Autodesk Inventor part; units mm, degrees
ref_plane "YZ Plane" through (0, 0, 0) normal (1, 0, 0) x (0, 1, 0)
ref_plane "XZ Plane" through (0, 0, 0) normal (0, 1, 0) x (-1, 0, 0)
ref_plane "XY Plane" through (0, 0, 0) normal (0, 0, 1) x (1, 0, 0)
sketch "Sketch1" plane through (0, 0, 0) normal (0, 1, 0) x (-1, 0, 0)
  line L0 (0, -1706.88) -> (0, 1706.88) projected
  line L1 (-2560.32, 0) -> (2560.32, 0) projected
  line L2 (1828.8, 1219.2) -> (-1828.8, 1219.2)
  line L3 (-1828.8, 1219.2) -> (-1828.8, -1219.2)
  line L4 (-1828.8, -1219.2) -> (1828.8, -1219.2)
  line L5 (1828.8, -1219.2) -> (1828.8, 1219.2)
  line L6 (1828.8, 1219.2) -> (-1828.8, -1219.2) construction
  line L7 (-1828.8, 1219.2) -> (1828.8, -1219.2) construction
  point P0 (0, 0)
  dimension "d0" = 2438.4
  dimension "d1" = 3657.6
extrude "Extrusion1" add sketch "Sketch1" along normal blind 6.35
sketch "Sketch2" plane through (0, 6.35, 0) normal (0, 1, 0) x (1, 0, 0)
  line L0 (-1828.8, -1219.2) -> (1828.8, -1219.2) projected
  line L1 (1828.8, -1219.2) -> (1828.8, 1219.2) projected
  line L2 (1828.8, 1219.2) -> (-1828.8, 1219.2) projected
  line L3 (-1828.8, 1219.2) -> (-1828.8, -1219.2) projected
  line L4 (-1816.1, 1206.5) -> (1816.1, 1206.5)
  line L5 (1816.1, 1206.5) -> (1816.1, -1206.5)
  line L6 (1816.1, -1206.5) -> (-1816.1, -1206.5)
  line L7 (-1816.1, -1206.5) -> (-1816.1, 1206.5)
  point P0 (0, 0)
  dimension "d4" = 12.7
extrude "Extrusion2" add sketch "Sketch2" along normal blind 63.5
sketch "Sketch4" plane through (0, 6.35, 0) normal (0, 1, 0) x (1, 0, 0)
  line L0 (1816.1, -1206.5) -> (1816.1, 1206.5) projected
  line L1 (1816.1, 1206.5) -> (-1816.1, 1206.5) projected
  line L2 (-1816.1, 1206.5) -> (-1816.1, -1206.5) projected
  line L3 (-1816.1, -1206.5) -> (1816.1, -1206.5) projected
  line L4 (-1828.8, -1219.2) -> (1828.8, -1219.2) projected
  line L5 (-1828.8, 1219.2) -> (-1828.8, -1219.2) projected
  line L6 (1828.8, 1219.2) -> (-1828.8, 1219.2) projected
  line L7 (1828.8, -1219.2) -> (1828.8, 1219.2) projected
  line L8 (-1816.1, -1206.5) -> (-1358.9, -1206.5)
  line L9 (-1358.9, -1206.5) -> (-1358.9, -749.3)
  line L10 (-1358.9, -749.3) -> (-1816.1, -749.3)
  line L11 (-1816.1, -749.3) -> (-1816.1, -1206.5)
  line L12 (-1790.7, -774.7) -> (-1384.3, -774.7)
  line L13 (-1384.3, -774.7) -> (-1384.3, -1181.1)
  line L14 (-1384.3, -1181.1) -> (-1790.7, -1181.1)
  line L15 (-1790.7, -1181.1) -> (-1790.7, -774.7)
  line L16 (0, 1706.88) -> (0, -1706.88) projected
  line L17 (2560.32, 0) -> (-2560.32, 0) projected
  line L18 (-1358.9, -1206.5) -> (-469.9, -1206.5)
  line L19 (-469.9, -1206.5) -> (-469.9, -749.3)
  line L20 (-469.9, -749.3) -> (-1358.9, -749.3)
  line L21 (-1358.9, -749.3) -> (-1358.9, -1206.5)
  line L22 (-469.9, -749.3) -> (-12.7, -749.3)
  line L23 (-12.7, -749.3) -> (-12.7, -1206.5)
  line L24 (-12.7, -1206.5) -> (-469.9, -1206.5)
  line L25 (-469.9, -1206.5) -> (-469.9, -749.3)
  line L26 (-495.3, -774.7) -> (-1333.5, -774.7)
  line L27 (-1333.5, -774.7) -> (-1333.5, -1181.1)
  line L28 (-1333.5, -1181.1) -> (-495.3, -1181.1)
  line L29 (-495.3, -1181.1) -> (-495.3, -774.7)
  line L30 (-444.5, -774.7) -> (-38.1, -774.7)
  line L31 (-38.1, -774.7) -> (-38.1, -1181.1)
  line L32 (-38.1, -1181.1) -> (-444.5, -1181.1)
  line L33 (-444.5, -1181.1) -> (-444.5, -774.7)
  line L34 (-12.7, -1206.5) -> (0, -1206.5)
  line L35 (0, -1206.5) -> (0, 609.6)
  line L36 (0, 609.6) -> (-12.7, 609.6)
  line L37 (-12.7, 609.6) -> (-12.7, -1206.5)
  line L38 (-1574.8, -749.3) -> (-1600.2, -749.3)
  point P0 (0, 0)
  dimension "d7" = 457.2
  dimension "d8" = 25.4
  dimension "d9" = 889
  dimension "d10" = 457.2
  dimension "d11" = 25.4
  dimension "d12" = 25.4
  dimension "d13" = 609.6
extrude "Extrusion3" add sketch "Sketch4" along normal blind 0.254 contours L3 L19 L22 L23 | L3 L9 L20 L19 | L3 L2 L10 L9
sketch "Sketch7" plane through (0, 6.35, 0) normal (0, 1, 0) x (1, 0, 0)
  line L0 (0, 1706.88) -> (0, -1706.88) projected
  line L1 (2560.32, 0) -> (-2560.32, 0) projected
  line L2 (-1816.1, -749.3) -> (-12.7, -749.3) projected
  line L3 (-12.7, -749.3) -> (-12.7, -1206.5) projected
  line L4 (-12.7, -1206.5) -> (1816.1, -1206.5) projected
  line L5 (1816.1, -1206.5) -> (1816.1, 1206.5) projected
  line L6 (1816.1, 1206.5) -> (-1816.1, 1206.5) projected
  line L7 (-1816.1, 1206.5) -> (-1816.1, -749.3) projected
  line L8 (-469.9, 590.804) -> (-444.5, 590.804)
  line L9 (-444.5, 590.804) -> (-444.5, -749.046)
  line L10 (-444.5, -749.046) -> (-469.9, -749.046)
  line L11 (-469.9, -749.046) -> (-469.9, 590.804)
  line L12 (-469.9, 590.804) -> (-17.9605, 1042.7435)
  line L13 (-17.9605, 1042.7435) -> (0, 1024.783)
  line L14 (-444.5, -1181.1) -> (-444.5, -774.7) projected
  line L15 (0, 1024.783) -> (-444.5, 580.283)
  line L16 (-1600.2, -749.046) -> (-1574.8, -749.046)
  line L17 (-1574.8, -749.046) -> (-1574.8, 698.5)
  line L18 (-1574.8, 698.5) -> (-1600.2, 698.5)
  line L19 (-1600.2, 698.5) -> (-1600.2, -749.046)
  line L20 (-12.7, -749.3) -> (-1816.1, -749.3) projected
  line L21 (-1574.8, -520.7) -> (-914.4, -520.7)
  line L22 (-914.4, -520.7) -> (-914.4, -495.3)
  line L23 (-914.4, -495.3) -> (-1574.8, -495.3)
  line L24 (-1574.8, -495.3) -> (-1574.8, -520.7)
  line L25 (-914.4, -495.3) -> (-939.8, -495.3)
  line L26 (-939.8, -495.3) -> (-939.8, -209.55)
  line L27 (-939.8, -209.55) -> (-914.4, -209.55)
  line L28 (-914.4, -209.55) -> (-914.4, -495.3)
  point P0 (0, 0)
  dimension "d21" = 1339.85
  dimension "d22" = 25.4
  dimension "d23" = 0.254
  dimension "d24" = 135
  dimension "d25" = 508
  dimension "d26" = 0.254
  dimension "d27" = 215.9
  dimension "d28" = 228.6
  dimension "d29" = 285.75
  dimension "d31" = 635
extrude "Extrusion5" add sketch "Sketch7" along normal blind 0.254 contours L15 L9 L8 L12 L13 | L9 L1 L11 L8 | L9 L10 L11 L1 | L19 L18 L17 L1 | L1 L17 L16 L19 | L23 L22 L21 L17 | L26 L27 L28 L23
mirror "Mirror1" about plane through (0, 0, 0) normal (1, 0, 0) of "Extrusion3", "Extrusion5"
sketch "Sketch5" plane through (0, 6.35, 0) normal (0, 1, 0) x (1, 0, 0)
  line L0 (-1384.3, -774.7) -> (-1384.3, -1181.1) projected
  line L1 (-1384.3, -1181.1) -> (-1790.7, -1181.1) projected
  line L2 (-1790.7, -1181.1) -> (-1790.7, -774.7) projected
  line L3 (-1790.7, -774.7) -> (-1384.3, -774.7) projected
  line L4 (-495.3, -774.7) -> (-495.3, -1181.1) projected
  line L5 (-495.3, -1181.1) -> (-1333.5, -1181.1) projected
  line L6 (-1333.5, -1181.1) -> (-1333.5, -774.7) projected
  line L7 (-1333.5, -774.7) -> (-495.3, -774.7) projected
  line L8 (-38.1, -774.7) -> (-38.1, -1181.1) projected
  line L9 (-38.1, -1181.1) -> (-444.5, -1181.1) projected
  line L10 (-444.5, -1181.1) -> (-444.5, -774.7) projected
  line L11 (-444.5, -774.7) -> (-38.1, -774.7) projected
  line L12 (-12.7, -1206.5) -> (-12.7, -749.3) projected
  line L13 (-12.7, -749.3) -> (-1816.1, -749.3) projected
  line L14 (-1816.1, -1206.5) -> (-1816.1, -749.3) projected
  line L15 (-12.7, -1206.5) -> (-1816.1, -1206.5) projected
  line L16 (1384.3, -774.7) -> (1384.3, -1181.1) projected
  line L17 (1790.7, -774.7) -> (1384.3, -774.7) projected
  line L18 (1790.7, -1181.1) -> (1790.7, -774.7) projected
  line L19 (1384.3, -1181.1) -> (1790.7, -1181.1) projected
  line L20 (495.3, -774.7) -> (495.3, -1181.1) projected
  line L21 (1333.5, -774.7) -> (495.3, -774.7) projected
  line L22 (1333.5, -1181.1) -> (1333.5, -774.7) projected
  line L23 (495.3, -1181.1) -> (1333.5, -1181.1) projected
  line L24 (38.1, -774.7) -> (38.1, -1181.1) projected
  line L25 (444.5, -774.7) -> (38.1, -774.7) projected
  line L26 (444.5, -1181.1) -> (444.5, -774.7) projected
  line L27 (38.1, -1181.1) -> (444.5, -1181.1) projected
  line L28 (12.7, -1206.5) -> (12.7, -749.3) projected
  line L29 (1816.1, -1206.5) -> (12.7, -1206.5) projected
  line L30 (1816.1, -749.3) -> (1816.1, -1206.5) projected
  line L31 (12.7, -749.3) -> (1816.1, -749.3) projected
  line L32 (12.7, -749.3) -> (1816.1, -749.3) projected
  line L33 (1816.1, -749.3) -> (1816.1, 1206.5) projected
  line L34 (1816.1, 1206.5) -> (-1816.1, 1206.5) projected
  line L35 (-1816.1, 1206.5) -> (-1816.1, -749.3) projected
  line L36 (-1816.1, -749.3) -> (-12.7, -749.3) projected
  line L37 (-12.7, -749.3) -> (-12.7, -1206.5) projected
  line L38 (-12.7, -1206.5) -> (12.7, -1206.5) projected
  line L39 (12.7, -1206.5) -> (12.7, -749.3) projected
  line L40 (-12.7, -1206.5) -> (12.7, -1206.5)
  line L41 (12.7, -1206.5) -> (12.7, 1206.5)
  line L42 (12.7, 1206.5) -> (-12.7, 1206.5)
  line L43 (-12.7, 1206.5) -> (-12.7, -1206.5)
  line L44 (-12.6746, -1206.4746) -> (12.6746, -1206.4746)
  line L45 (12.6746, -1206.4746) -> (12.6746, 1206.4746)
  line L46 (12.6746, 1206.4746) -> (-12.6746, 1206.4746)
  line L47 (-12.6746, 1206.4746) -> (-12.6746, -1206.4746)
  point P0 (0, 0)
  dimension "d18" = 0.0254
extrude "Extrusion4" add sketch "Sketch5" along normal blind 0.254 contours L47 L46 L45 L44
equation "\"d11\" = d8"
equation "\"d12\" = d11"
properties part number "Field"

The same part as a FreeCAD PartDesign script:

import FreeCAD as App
import Part
import Sketcher
Q = App.Units.Quantity

doc = App.newDocument("Part")
body = doc.addObject("PartDesign::Body", "Body")

# Sketch on XZ plane
sketch1 = body.newObject("Sketcher::SketchObject", "Sketch")
sketch1.AttachmentSupport = (doc.getObject("XZ_Plane"), [""])
sketch1.MapMode = "FlatFace"
sketch1.addGeometry([
    Part.LineSegment(App.Vector(1829, -1219, 0), App.Vector(-1829, -1219, 0)),
    Part.LineSegment(App.Vector(-1829, -1219, 0), App.Vector(-1829, 1219, 0)),
    Part.LineSegment(App.Vector(-1829, 1219, 0), App.Vector(1829, 1219, 0)),
    Part.LineSegment(App.Vector(1829, 1219, 0), App.Vector(1829, -1219, 0)),
], False)
sketch1.addConstraint([
    Sketcher.Constraint("Coincident", 0, 2, 1, 1),
    Sketcher.Constraint("Coincident", 1, 2, 2, 1),
    Sketcher.Constraint("Coincident", 2, 2, 3, 1),
    Sketcher.Constraint("Coincident", 3, 2, 0, 1),
    Sketcher.Constraint("Horizontal", 0),
    Sketcher.Constraint("Vertical", 1),
    Sketcher.Constraint("Horizontal", 2),
    Sketcher.Constraint("Vertical", 3),
    Sketcher.Constraint("Symmetric", 0, 2, 2, 2, -1, 1),
    Sketcher.Constraint("DistanceX", 0, 2, 0, 1, Q("144 in")),
    Sketcher.Constraint("DistanceY", 1, 1, 1, 2, Q("96 in")),
])
pad1 = body.newObject("PartDesign::Pad", "Pad")
pad1.Profile = sketch1
pad1.Length = Q("0.25 in")
pad1.Reversed = True

# Sketch on XZ plane
sketch2 = body.newObject("Sketcher::SketchObject", "Sketch001")
sketch2.AttachmentSupport = (doc.getObject("XZ_Plane"), [""])
sketch2.MapMode = "FlatFace"
sketch2.AttachmentOffset = App.Placement(App.Vector(0, 0, -0.25 * 25.4), App.Rotation())
sketch2.addGeometry([
    Part.LineSegment(App.Vector(-1829, -1219, 0), App.Vector(-1829, 1219, 0)),  # 0
    Part.LineSegment(App.Vector(-1829, 1219, 0), App.Vector(1829, 1219, 0)),  # 1
    Part.LineSegment(App.Vector(1829, 1219, 0), App.Vector(1829, -1219, 0)),  # 2
    Part.LineSegment(App.Vector(1829, -1219, 0), App.Vector(-1829, -1219, 0)),  # 3
    Part.LineSegment(App.Vector(-1816, 1206, 0), App.Vector(-1816, -1206, 0)),  # 4
    Part.LineSegment(App.Vector(-1816, -1206, 0), App.Vector(1816, -1206, 0)),  # 5
    Part.LineSegment(App.Vector(1816, -1206, 0), App.Vector(1816, 1206, 0)),  # 6
    Part.LineSegment(App.Vector(1816, 1206, 0), App.Vector(-1816, 1206, 0)),  # 7
], False)
sketch2.addConstraint([
    Sketcher.Constraint("Coincident", 0, 2, 1, 1),
    Sketcher.Constraint("Coincident", 1, 2, 2, 1),
    Sketcher.Constraint("Coincident", 2, 2, 3, 1),
    Sketcher.Constraint("Coincident", 3, 2, 0, 1),
    Sketcher.Constraint("Coincident", 4, 2, 5, 1),
    Sketcher.Constraint("Coincident", 5, 2, 6, 1),
    Sketcher.Constraint("Coincident", 6, 2, 7, 1),
    Sketcher.Constraint("Coincident", 7, 2, 4, 1),
    Sketcher.Constraint("Vertical", 0),
    Sketcher.Constraint("Horizontal", 1),
    Sketcher.Constraint("Vertical", 2),
    Sketcher.Constraint("Horizontal", 3),
    Sketcher.Constraint("Vertical", 4),
    Sketcher.Constraint("Horizontal", 5),
    Sketcher.Constraint("Vertical", 6),
    Sketcher.Constraint("Horizontal", 7),
    Sketcher.Constraint("Symmetric", 0, 2, 2, 2, -1, 1),
    Sketcher.Constraint("Symmetric", 4, 2, 6, 2, -1, 1),
    Sketcher.Constraint("DistanceX", 3, 2, 4, 2, Q("0.5 in")),
    Sketcher.Constraint("DistanceY", 3, 2, 4, 2, Q("0.5 in")),
    Sketcher.Constraint("DistanceX", 1, 1, 1, 2, Q("144 in")),
    Sketcher.Constraint("DistanceY", 0, 1, 0, 2, Q("96 in")),
])
pad2 = body.newObject("PartDesign::Pad", "Pad001")
pad2.Profile = sketch2
pad2.Length = Q("2.5 in")
pad2.Reversed = True

# Sketch on XZ plane
sketch3 = body.newObject("Sketcher::SketchObject", "Sketch002")
sketch3.AttachmentSupport = (doc.getObject("XZ_Plane"), [""])
sketch3.MapMode = "FlatFace"
sketch3.AttachmentOffset = App.Placement(App.Vector(0, 0, -0.25 * 25.4), App.Rotation())
sketch3.addGeometry([
    Part.LineSegment(App.Vector(-13, 1206, 0), App.Vector(-13, 749, 0)),  # 0
    Part.LineSegment(App.Vector(-13, 749, 0), App.Vector(-1816, 749, 0)),  # 1
    Part.LineSegment(App.Vector(-1816, 749, 0), App.Vector(-1816, 1206, 0)),  # 2
    Part.LineSegment(App.Vector(-1816, 1206, 0), App.Vector(-13, 1206, 0)),  # 3
    Part.LineSegment(App.Vector(-444, 1181, 0), App.Vector(-444, 775, 0)),  # 4
    Part.LineSegment(App.Vector(-444, 775, 0), App.Vector(-38, 775, 0)),  # 5
    Part.LineSegment(App.Vector(-38, 775, 0), App.Vector(-38, 1181, 0)),  # 6
    Part.LineSegment(App.Vector(-38, 1181, 0), App.Vector(-444, 1181, 0)),  # 7
    Part.LineSegment(App.Vector(-495, 775, 0), App.Vector(-495, 1181, 0)),  # 8
    Part.LineSegment(App.Vector(-495, 1181, 0), App.Vector(-1334, 1181, 0)),  # 9
    Part.LineSegment(App.Vector(-1334, 1181, 0), App.Vector(-1334, 775, 0)),  # 10
    Part.LineSegment(App.Vector(-1334, 775, 0), App.Vector(-495, 775, 0)),  # 11
    Part.LineSegment(App.Vector(-1791, 775, 0), App.Vector(-1384, 775, 0)),  # 12
    Part.LineSegment(App.Vector(-1384, 775, 0), App.Vector(-1384, 1181, 0)),  # 13
    Part.LineSegment(App.Vector(-1384, 1181, 0), App.Vector(-1791, 1181, 0)),  # 14
    Part.LineSegment(App.Vector(-1791, 1181, 0), App.Vector(-1791, 775, 0)),  # 15
], False)
sketch3.addConstraint([
    Sketcher.Constraint("Coincident", 0, 2, 1, 1),
    Sketcher.Constraint("Coincident", 1, 2, 2, 1),
    Sketcher.Constraint("Coincident", 2, 2, 3, 1),
    Sketcher.Constraint("Coincident", 3, 2, 0, 1),
    Sketcher.Constraint("Coincident", 4, 2, 5, 1),
    Sketcher.Constraint("Coincident", 5, 2, 6, 1),
    Sketcher.Constraint("Coincident", 6, 2, 7, 1),
    Sketcher.Constraint("Coincident", 7, 2, 4, 1),
    Sketcher.Constraint("Coincident", 8, 2, 9, 1),
    Sketcher.Constraint("Coincident", 9, 2, 10, 1),
    Sketcher.Constraint("Coincident", 10, 2, 11, 1),
    Sketcher.Constraint("Coincident", 11, 2, 8, 1),
    Sketcher.Constraint("Coincident", 12, 2, 13, 1),
    Sketcher.Constraint("Coincident", 13, 2, 14, 1),
    Sketcher.Constraint("Coincident", 14, 2, 15, 1),
    Sketcher.Constraint("Coincident", 15, 2, 12, 1),
    Sketcher.Constraint("Vertical", 0),
    Sketcher.Constraint("Horizontal", 1),
    Sketcher.Constraint("Vertical", 2),
    Sketcher.Constraint("Horizontal", 3),
    Sketcher.Constraint("Vertical", 4),
    Sketcher.Constraint("Horizontal", 5),
    Sketcher.Constraint("Vertical", 6),
    Sketcher.Constraint("Horizontal", 7),
    Sketcher.Constraint("Vertical", 8),
    Sketcher.Constraint("Horizontal", 9),
    Sketcher.Constraint("Vertical", 10),
    Sketcher.Constraint("Horizontal", 11),
    Sketcher.Constraint("Horizontal", 12),
    Sketcher.Constraint("Vertical", 13),
    Sketcher.Constraint("Horizontal", 14),
    Sketcher.Constraint("Vertical", 15),
    Sketcher.Constraint("Horizontal", 7, 2, 8, 2),
    Sketcher.Constraint("Horizontal", 5, 2, 10, 2),
    Sketcher.Constraint("Horizontal", 11, 2, 12, 2),
    Sketcher.Constraint("Horizontal", 9, 2, 13, 2),
    Sketcher.Constraint("Equal", 7, 12),
    Sketcher.Constraint("Equal", 14, 4),
    Sketcher.Constraint("DistanceY", 0, 2, 0, 1, Q("18 in")),
    Sketcher.Constraint("DistanceY", 0, 2, 4, 2, Q("1 in")),
    Sketcher.Constraint("DistanceX", 5, 2, 0, 2, Q("1 in")),
    Sketcher.Constraint("DistanceY", 6, 2, 3, 2, Q("1 in")),
    Sketcher.Constraint("DistanceX", 8, 2, 6, 2, Q("18 in")),
    Sketcher.Constraint("DistanceX", 9, 2, 7, 2, Q("35 in")),
    Sketcher.Constraint("DistanceX", 12, 2, 11, 2, Q("35 in")),
    Sketcher.Constraint("DistanceX", 2, 2, 14, 2, Q("1 in")),
    Sketcher.Constraint("DistanceX", 0, 2, -1, 1, Q("0.5 in")),
    Sketcher.Constraint("DistanceY", -1, 1, 0, 2, Q("29.5 in")),
])
pad3 = body.newObject("PartDesign::Pad", "Pad002")
pad3.Profile = sketch3
pad3.Length = Q("0.01 in")
pad3.Reversed = True

# Sketch on XZ plane
sketch4 = body.newObject("Sketcher::SketchObject", "Sketch003")
sketch4.AttachmentSupport = (doc.getObject("XZ_Plane"), [""])
sketch4.MapMode = "FlatFace"
sketch4.AttachmentOffset = App.Placement(App.Vector(0, 0, -0.25 * 25.4), App.Rotation())
sketch4.addGeometry([
    Part.LineSegment(App.Vector(-444, -580, 0), App.Vector(0, -1025, 0)),  # 0
    Part.LineSegment(App.Vector(0, -1025, 0), App.Vector(-18, -1043, 0)),  # 1
    Part.LineSegment(App.Vector(-18, -1043, 0), App.Vector(-470, -591, 0)),  # 2
    Part.LineSegment(App.Vector(-470, -591, 0), App.Vector(-470, 749, 0)),  # 3
    Part.LineSegment(App.Vector(-470, 749, 0), App.Vector(-444, 749, 0)),  # 4
    Part.LineSegment(App.Vector(-444, 749, 0), App.Vector(-444, -580, 0)),  # 5
    Part.LineSegment(App.Vector(-1600, -698, 0), App.Vector(-1600, 749, 0)),  # 6
    Part.LineSegment(App.Vector(-1600, 749, 0), App.Vector(-1575, 749, 0)),  # 7
    Part.LineSegment(App.Vector(-1575, 749, 0), App.Vector(-1575, 521, 0)),  # 8
    Part.LineSegment(App.Vector(-1575, 521, 0), App.Vector(-914, 521, 0)),  # 9
    Part.LineSegment(App.Vector(-914, 521, 0), App.Vector(-914, 210, 0)),  # 10
    Part.LineSegment(App.Vector(-914, 210, 0), App.Vector(-940, 210, 0)),  # 11
    Part.LineSegment(App.Vector(-940, 210, 0), App.Vector(-940, 495, 0)),  # 12
    Part.LineSegment(App.Vector(-940, 495, 0), App.Vector(-1575, 495, 0)),  # 13
    Part.LineSegment(App.Vector(-1575, 495, 0), App.Vector(-1575, -698, 0)),  # 14
    Part.LineSegment(App.Vector(-1575, -698, 0), App.Vector(-1600, -698, 0)),  # 15
], False)
sketch4.addConstraint([
    Sketcher.Constraint("Coincident", 0, 2, 1, 1),
    Sketcher.Constraint("Coincident", 1, 2, 2, 1),
    Sketcher.Constraint("Coincident", 2, 2, 3, 1),
    Sketcher.Constraint("Coincident", 3, 2, 4, 1),
    Sketcher.Constraint("Coincident", 4, 2, 5, 1),
    Sketcher.Constraint("Coincident", 5, 2, 0, 1),
    Sketcher.Constraint("Coincident", 6, 2, 7, 1),
    Sketcher.Constraint("Coincident", 7, 2, 8, 1),
    Sketcher.Constraint("Coincident", 8, 2, 9, 1),
    Sketcher.Constraint("Coincident", 9, 2, 10, 1),
    Sketcher.Constraint("Coincident", 10, 2, 11, 1),
    Sketcher.Constraint("Coincident", 11, 2, 12, 1),
    Sketcher.Constraint("Coincident", 12, 2, 13, 1),
    Sketcher.Constraint("Coincident", 13, 2, 14, 1),
    Sketcher.Constraint("Coincident", 14, 2, 15, 1),
    Sketcher.Constraint("Coincident", 15, 2, 6, 1),
    Sketcher.Constraint("Vertical", 3),
    Sketcher.Constraint("Horizontal", 4),
    Sketcher.Constraint("Vertical", 5),
    Sketcher.Constraint("Vertical", 6),
    Sketcher.Constraint("Horizontal", 7),
    Sketcher.Constraint("Vertical", 8),
    Sketcher.Constraint("Horizontal", 9),
    Sketcher.Constraint("Vertical", 10),
    Sketcher.Constraint("Horizontal", 11),
    Sketcher.Constraint("Vertical", 12),
    Sketcher.Constraint("Horizontal", 13),
    Sketcher.Constraint("Vertical", 14),
    Sketcher.Constraint("Horizontal", 15),
    Sketcher.Constraint("PointOnObject", 0, 2, -2),
    Sketcher.Constraint("Perpendicular", 0, 1),
    Sketcher.Constraint("Perpendicular", 1, 2),
    Sketcher.Constraint("Horizontal", 4, 2, 6, 2),
    Sketcher.Constraint("Vertical", 8, 2, 13, 2),
    Sketcher.Constraint("Equal", 4, 7),
    Sketcher.Constraint("Equal", 7, 11),
    Sketcher.Constraint("DistanceX", 4, 1, 4, 2, Q("1 in")),
    Sketcher.Constraint("DistanceX", 13, 2, 13, 1, Q("25 in")),
    Sketcher.Constraint("Distance", 1, Q("1 in")),
    Sketcher.Constraint("Angle", 1, Q("-135 deg")),
    Sketcher.Constraint("DistanceY", 12, 2, 9, 2, Q("1 in")),
    Sketcher.Constraint("DistanceY", 3, 1, 3, 2, Q("52.75 in")),
    Sketcher.Constraint("DistanceY", 12, 1, 12, 2, Q("11.25 in")),
    Sketcher.Constraint("DistanceY", 14, 2, 14, 1, Q("47 in")),
    Sketcher.Constraint("DistanceX", 6, 2, -1, 1, Q("63 in")),
    Sketcher.Constraint("DistanceY", 6, 1, 6, 2, Q("56.99 in")),
    Sketcher.Constraint("DistanceX", 2, 2, -1, 1, Q("18.5 in")),
    Sketcher.Constraint("DistanceY", -1, 1, 8, 2, Q("20.5 in")),
])
pad4 = body.newObject("PartDesign::Pad", "Pad003")
pad4.Profile = sketch4
pad4.Length = Q("0.01 in")
pad4.Reversed = True
doc.recompute()

mirrored = body.newObject("PartDesign::Mirrored", "Mirrored")
mirrored.Originals = [pad3, pad4]
mirrored.MirrorPlane = (doc.getObject("YZ_Plane"), [""])
body.Tip = mirrored

# Sketch on XZ plane
sketch5 = body.newObject("Sketcher::SketchObject", "Sketch004")
sketch5.AttachmentSupport = (doc.getObject("XZ_Plane"), [""])
sketch5.MapMode = "FlatFace"
sketch5.AttachmentOffset = App.Placement(App.Vector(0, 0, -0.25 * 25.4), App.Rotation())
sketch5.addGeometry([
    Part.LineSegment(App.Vector(-13, -1206, 0), App.Vector(-13, 1206, 0)),
    Part.LineSegment(App.Vector(-13, 1206, 0), App.Vector(13, 1206, 0)),
    Part.LineSegment(App.Vector(13, 1206, 0), App.Vector(13, -1206, 0)),
    Part.LineSegment(App.Vector(13, -1206, 0), App.Vector(-13, -1206, 0)),
], False)
sketch5.addConstraint([
    Sketcher.Constraint("Coincident", 0, 2, 1, 1),
    Sketcher.Constraint("Coincident", 1, 2, 2, 1),
    Sketcher.Constraint("Coincident", 2, 2, 3, 1),
    Sketcher.Constraint("Coincident", 3, 2, 0, 1),
    Sketcher.Constraint("Vertical", 0),
    Sketcher.Constraint("Horizontal", 1),
    Sketcher.Constraint("Vertical", 2),
    Sketcher.Constraint("Horizontal", 3),
    Sketcher.Constraint("Symmetric", 0, 2, 2, 2, -1, 1),
    Sketcher.Constraint("DistanceX", 1, 1, 1, 2, Q("0.998 in")),
    Sketcher.Constraint("DistanceY", 0, 1, 0, 2, Q("94.998 in")),
])
pad5 = body.newObject("PartDesign::Pad", "Pad004")
pad5.Profile = sketch5
pad5.Length = Q("0.01 in")
pad5.Reversed = True

doc.recompute()
